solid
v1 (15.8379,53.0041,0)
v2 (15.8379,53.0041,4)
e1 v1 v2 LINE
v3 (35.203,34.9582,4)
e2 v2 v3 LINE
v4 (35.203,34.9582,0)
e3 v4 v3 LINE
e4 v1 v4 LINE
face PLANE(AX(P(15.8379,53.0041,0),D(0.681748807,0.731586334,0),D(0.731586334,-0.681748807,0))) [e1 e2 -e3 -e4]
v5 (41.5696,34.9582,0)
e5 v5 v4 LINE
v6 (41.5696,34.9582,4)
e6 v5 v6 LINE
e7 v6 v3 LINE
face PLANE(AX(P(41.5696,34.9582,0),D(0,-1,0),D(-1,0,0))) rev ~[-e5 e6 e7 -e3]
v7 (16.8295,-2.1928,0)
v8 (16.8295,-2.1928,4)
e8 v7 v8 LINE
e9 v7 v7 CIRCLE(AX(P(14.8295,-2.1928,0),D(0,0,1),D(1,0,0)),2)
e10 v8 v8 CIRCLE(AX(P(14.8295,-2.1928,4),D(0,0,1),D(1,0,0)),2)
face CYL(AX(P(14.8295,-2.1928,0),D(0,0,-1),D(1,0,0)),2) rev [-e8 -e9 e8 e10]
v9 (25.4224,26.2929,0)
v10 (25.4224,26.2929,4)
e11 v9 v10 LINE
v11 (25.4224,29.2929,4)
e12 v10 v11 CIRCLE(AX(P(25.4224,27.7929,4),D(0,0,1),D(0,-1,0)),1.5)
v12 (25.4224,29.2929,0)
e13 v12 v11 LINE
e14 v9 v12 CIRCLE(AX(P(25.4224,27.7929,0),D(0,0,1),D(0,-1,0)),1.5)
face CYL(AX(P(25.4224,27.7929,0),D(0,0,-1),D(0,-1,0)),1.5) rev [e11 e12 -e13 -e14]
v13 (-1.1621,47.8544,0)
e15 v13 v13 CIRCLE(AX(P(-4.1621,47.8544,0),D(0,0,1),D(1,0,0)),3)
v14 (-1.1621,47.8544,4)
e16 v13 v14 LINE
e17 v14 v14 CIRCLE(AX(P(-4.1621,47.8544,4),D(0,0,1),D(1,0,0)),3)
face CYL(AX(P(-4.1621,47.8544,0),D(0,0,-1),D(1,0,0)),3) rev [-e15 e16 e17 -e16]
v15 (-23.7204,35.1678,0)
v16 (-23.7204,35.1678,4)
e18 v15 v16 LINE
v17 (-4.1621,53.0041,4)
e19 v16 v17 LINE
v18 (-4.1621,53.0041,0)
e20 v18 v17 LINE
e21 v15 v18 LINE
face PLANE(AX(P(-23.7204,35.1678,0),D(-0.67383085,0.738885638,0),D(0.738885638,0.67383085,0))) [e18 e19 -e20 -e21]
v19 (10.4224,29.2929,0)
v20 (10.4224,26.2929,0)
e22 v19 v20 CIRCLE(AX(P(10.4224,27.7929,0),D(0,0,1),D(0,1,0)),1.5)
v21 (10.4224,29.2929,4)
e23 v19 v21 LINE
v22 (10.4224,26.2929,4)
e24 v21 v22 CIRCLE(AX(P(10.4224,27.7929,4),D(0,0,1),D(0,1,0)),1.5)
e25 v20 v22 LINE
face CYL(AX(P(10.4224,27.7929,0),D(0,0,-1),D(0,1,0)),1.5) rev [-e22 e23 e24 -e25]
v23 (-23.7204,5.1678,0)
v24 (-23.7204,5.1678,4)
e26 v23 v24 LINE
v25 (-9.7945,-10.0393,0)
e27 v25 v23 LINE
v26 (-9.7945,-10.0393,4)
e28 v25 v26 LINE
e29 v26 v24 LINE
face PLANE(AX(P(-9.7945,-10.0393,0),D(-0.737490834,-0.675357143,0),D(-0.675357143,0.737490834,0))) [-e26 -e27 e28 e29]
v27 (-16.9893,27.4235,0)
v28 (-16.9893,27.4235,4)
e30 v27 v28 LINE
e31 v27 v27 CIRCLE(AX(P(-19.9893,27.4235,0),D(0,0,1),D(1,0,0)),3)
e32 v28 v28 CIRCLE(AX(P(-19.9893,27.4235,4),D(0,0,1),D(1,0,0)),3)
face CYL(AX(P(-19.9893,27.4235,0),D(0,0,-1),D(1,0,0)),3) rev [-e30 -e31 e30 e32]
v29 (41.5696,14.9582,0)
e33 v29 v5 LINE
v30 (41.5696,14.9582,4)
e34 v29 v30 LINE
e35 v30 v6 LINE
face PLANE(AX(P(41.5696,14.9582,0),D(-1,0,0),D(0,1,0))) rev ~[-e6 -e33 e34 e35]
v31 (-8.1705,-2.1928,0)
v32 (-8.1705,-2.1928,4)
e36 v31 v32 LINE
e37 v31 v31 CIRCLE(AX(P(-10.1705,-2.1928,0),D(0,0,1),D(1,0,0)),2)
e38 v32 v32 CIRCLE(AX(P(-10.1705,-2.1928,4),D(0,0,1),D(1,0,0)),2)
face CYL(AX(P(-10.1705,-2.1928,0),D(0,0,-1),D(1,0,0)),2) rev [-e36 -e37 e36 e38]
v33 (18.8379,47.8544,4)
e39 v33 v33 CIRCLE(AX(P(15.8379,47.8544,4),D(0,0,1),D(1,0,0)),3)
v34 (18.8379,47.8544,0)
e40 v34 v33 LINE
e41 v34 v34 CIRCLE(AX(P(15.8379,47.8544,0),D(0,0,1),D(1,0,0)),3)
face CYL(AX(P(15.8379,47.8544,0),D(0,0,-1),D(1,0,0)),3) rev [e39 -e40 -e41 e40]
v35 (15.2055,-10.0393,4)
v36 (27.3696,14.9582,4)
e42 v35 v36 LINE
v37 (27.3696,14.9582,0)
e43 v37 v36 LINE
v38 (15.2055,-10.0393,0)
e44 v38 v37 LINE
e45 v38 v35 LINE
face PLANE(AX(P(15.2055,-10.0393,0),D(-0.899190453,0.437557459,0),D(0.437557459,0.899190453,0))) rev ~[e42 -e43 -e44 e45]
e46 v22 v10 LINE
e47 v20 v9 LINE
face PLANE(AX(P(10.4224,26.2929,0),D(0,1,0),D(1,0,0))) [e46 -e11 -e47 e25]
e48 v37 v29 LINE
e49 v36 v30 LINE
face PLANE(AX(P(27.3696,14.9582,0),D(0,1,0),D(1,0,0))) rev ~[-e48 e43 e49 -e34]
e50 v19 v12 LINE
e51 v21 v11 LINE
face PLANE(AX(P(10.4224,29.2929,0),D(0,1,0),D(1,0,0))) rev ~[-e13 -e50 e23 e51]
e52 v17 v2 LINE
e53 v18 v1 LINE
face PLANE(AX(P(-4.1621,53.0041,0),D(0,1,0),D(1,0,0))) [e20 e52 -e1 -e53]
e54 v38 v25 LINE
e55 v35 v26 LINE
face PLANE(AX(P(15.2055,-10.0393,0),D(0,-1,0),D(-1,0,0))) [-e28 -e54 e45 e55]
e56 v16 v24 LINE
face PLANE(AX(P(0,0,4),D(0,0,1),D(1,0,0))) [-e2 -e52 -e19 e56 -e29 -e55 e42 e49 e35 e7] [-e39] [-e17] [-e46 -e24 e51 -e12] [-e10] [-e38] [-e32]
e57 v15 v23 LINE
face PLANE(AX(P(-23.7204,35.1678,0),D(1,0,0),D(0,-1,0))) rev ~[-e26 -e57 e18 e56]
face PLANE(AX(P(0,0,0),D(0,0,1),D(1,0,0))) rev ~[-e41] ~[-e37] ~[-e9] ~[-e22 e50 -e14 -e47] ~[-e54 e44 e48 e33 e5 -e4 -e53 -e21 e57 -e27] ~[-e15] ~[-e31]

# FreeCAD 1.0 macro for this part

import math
import FreeCAD as App
import Part
import Sketcher
Q = App.Units.Quantity

doc = App.newDocument("Part")
body = doc.addObject("PartDesign::Body", "Body")

# Sketch on XY plane
sketch1 = body.newObject("Sketcher::SketchObject", "Sketch")
sketch1.AttachmentSupport = (doc.getObject("XY_Plane"), [""])
sketch1.MapMode = "FlatFace"
sketch1.addGeometry(Part.LineSegment(App.Vector(15.8379, 53.0041, 0), App.Vector(-4.1621, 53.0041, 0)), False)
sketch1.addGeometry(Part.LineSegment(App.Vector(-4.1621, 53.0041, 0), App.Vector(-23.7204, 35.1678, 0)), False)
sketch1.addGeometry(Part.LineSegment(App.Vector(-23.7204, 35.1678, 0), App.Vector(-23.7204, 5.1678, 0)), False)
sketch1.addGeometry(Part.LineSegment(App.Vector(-23.7204, 5.1678, 0), App.Vector(-9.7945, -10.0393, 0)), False)
sketch1.addGeometry(Part.LineSegment(App.Vector(-9.7945, -10.0393, 0), App.Vector(15.2055, -10.0393, 0)), False)
sketch1.addGeometry(Part.LineSegment(App.Vector(15.2055, -10.0393, 0), App.Vector(27.3696, 14.9582, 0)), False)
sketch1.addGeometry(Part.LineSegment(App.Vector(27.3696, 14.9582, 0), App.Vector(41.5696, 14.9582, 0)), False)
sketch1.addGeometry(Part.LineSegment(App.Vector(41.5696, 14.9582, 0), App.Vector(41.5696, 34.9582, 0)), False)
sketch1.addGeometry(Part.LineSegment(App.Vector(41.5696, 34.9582, 0), App.Vector(35.203, 34.9582, 0)), False)
sketch1.addGeometry(Part.LineSegment(App.Vector(35.203, 34.9582, 0), App.Vector(15.8379, 53.0041, 0)), False)
sketch1.addGeometry(Part.Circle(App.Vector(-10.1705, -2.1928, 0), App.Vector(0, 0, 1), 2), False)
sketch1.addGeometry(Part.Circle(App.Vector(14.8295, -2.1928, 0), App.Vector(0, 0, 1), 2), False)
sketch1.addGeometry(Part.Circle(App.Vector(-19.9893, 27.4235, 0), App.Vector(0, 0, 1), 3), False)
sketch1.addGeometry(Part.Circle(App.Vector(-4.1621, 47.8544, 0), App.Vector(0, 0, 1), 3), False)
sketch1.addGeometry(Part.ArcOfCircle(Part.Circle(App.Vector(10.4224, 27.7929, 0), App.Vector(0, 0, 1), 1.5), math.radians(90), math.radians(270)), False)
sketch1.addGeometry(Part.LineSegment(App.Vector(10.4224, 29.2929, 0), App.Vector(25.4224, 29.2929, 0)), False)
sketch1.addGeometry(Part.ArcOfCircle(Part.Circle(App.Vector(25.4224, 27.7929, 0), App.Vector(0, 0, 1), 1.5), math.radians(-90), math.radians(90)), False)
sketch1.addGeometry(Part.LineSegment(App.Vector(25.4224, 26.2929, 0), App.Vector(10.4224, 26.2929, 0)), False)
sketch1.addGeometry(Part.Circle(App.Vector(15.8379, 47.8544, 0), App.Vector(0, 0, 1), 3), False)
sketch1.addConstraint(Sketcher.Constraint("Coincident", 0, 2, 1, 1))
sketch1.addConstraint(Sketcher.Constraint("Coincident", 1, 2, 2, 1))
sketch1.addConstraint(Sketcher.Constraint("Coincident", 2, 2, 3, 1))
sketch1.addConstraint(Sketcher.Constraint("Coincident", 3, 2, 4, 1))
sketch1.addConstraint(Sketcher.Constraint("Coincident", 4, 2, 5, 1))
sketch1.addConstraint(Sketcher.Constraint("Coincident", 5, 2, 6, 1))
sketch1.addConstraint(Sketcher.Constraint("Coincident", 6, 2, 7, 1))
sketch1.addConstraint(Sketcher.Constraint("Coincident", 7, 2, 8, 1))
sketch1.addConstraint(Sketcher.Constraint("Coincident", 8, 2, 9, 1))
sketch1.addConstraint(Sketcher.Constraint("Coincident", 9, 2, 0, 1))
sketch1.addConstraint(Sketcher.Constraint("Tangent", 14, 1, 15, 1))
sketch1.addConstraint(Sketcher.Constraint("Tangent", 15, 2, 16, 2))
sketch1.addConstraint(Sketcher.Constraint("Tangent", 16, 1, 17, 1))
sketch1.addConstraint(Sketcher.Constraint("Tangent", 17, 2, 14, 2))
sketch1.addConstraint(Sketcher.Constraint("Horizontal", 0))
sketch1.addConstraint(Sketcher.Constraint("Vertical", 2))
sketch1.addConstraint(Sketcher.Constraint("Horizontal", 4))
sketch1.addConstraint(Sketcher.Constraint("Horizontal", 6))
sketch1.addConstraint(Sketcher.Constraint("Vertical", 7))
sketch1.addConstraint(Sketcher.Constraint("Horizontal", 8))
sketch1.addConstraint(Sketcher.Constraint("Horizontal", 15))
sketch1.addConstraint(Sketcher.Constraint("Horizontal", 17))
sketch1.addConstraint(Sketcher.Constraint("Equal", 10, 11))
sketch1.addConstraint(Sketcher.Constraint("Equal", 12, 13))
sketch1.addConstraint(Sketcher.Constraint("Equal", 13, 18))
sketch1.addConstraint(Sketcher.Constraint("Horizontal", 10, 3, 11, 3))
sketch1.addConstraint(Sketcher.Constraint("Horizontal", 13, 3, 18, 3))
sketch1.addConstraint(Sketcher.Constraint("Vertical", 13, 3, 0, 2))
sketch1.addConstraint(Sketcher.Constraint("Vertical", 18, 3, 9, 2))
sketch1.addConstraint(Sketcher.Constraint("Equal", 0, 7))
sketch1.addConstraint(Sketcher.Constraint("Equal", 1, 9))
sketch1.addConstraint(Sketcher.Constraint("Diameter", 10, 4.0))
sketch1.addConstraint(Sketcher.Constraint("Diameter", 12, 6.0))
sketch1.addConstraint(Sketcher.Constraint("Radius", 14, 1.5))
sketch1.addConstraint(Sketcher.Constraint("DistanceX", 0, 2, 0, 1, 20.0))
sketch1.addConstraint(Sketcher.Constraint("DistanceX", 4, 1, 4, 2, 25.0))
sketch1.addConstraint(Sketcher.Constraint("DistanceX", 15, 1, 15, 2, 15.0))
sketch1.addConstraint(Sketcher.Constraint("DistanceY", 2, 2, 2, 1, 30.0))
sketch1.addConstraint(Sketcher.Constraint("DistanceX", 6, 1, 6, 2, 14.2))
sketch1.addConstraint(Sketcher.Constraint("DistanceX", 10, 3, 11, 3, 25.0))
sketch1.addConstraint(Sketcher.Constraint("Distance", 5, 27.8))
sketch1.addConstraint(Sketcher.Constraint("Distance", 1, 26.47))
sketch1.addConstraint(Sketcher.Constraint("Distance", 3, 20.62))
sketch1.addConstraint(Sketcher.Constraint("Angle", 9, Q("137.0195 deg")))
sketch1.addConstraint(Sketcher.Constraint("DistanceX", 1, 2, 10, 3, 13.55))
sketch1.addConstraint(Sketcher.Constraint("DistanceX", 11, 3, 5, 2, 12.54))
sketch1.addConstraint(Sketcher.Constraint("DistanceX", 8, 2, 8, 1, 6.3666))
sketch1.addConstraint(Sketcher.Constraint("DistanceX", 13, 3, -1, 1, 4.162))
sketch1.addConstraint(Sketcher.Constraint("DistanceY", -1, 1, 14, 3, 27.793))
sketch1.addConstraint(Sketcher.Constraint("DistanceY", -1, 1, 0, 2, 53.004))
sketch1.addConstraint(Sketcher.Constraint("DistanceY", 12, 3, 13, 3, 20.431))
sketch1.addConstraint(Sketcher.Constraint("DistanceX", 14, 3, 11, 3, 4.407))
sketch1.addConstraint(Sketcher.Constraint("DistanceX", 1, 2, 12, 3, 3.731))
sketch1.addConstraint(Sketcher.Constraint("DistanceY", 11, 3, 5, 2, 17.151))
sketch1.addConstraint(Sketcher.Constraint("DistanceY", -1, 1, 12, 3, 27.4235))
pad1 = body.newObject("PartDesign::Pad", "Pad")
pad1.Profile = sketch1
pad1.Length = 4

doc.recompute()
